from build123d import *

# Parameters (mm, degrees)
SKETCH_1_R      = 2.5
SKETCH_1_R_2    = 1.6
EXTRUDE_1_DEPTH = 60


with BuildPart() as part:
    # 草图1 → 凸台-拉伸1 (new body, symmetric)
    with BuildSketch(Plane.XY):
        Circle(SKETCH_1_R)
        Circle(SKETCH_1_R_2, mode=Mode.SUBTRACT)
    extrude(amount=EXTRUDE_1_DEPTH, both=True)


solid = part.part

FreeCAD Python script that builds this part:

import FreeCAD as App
import Part
import Sketcher

V = App.Vector
Q = App.Units.Quantity

doc = App.newDocument("Part")
body = doc.addObject("PartDesign::Body", "Body")

sketch1 = body.newObject("Sketcher::SketchObject", "Sketch")
sketch1.AttachmentSupport = (doc.getObject("XY_Plane"), [""])
sketch1.MapMode = "FlatFace"
sketch1.addGeometry(Part.Circle(V(0, 0, 0), V(0, 0, 1), 2.5), False)
sketch1.addGeometry(Part.Circle(V(0, 0, 0), V(0, 0, 1), 1.6), False)
sketch1.addConstraint(Sketcher.Constraint("Coincident", 0, 3, -1, 1))
sketch1.addConstraint(Sketcher.Constraint("Coincident", 1, 3, -1, 1))
sketch1.addConstraint(Sketcher.Constraint("Diameter", 0, Q("5 mm")))
sketch1.addConstraint(Sketcher.Constraint("Diameter", 1, Q("3.2 mm")))
pad1 = body.newObject("PartDesign::Pad", "Pad")
pad1.Profile = sketch1
pad1.Length = 120
pad1.Midplane = True

doc.recompute()
